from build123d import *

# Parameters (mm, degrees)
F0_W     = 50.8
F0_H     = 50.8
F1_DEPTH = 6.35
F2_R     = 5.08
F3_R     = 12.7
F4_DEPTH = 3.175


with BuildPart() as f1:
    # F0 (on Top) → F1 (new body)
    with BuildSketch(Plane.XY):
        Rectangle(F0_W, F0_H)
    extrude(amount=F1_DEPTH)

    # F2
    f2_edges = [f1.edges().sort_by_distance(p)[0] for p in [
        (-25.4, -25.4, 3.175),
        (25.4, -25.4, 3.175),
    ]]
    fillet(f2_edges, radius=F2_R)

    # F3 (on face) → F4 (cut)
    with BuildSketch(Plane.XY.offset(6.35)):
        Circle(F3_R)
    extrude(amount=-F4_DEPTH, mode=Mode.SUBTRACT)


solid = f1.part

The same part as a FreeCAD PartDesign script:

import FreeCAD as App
import Part
import Sketcher
Q = App.Units.Quantity


def edges_at(feature, points):
    """Names of the edges that pass closest to the given points."""
    edges = feature.Shape.Edges
    near = lambda p: min(range(len(edges)), key=lambda i: edges[i].distToShape(Part.Vertex(*p))[0])
    return sorted({f"Edge{near(p) + 1}" for p in points})

doc = App.newDocument("Part")
body = doc.addObject("PartDesign::Body", "Body")

# Sketch on XY plane
sketch1 = body.newObject("Sketcher::SketchObject", "Sketch")
sketch1.AttachmentSupport = (doc.getObject("XY_Plane"), [""])
sketch1.MapMode = "FlatFace"
sketch1.addGeometry([
    Part.LineSegment(App.Vector(-25, 25, 0), App.Vector(-25, -25, 0)),
    Part.LineSegment(App.Vector(-25, -25, 0), App.Vector(25, -25, 0)),
    Part.LineSegment(App.Vector(25, -25, 0), App.Vector(25, 25, 0)),
    Part.LineSegment(App.Vector(25, 25, 0), App.Vector(-25, 25, 0)),
], False)
sketch1.addConstraint([
    Sketcher.Constraint("Coincident", 0, 2, 1, 1),
    Sketcher.Constraint("Coincident", 1, 2, 2, 1),
    Sketcher.Constraint("Coincident", 2, 2, 3, 1),
    Sketcher.Constraint("Coincident", 3, 2, 0, 1),
    Sketcher.Constraint("Vertical", 0),
    Sketcher.Constraint("Horizontal", 1),
    Sketcher.Constraint("Vertical", 2),
    Sketcher.Constraint("Horizontal", 3),
    Sketcher.Constraint("Symmetric", 0, 2, 2, 2, -1, 1),
    Sketcher.Constraint("Equal", 3, 0),
    Sketcher.Constraint("DistanceX", 1, 1, 1, 2, Q("2 in")),
])
pad1 = body.newObject("PartDesign::Pad", "Pad")
pad1.Profile = sketch1
pad1.Length = Q("0.25 in")
doc.recompute()

fillet = body.newObject("PartDesign::Fillet", "Fillet")
fillet.Base = (pad1, edges_at(pad1, [(-25.4, -25.4, 3.175), (25.4, -25.4, 3.175)]))
fillet.Radius = Q("0.2 in")

# Sketch on XY plane
sketch2 = body.newObject("Sketcher::SketchObject", "Sketch001")
sketch2.AttachmentSupport = (doc.getObject("XY_Plane"), [""])
sketch2.MapMode = "FlatFace"
sketch2.AttachmentOffset = App.Placement(App.Vector(0, 0, 0.25 * 25.4), App.Rotation())
sketch2.addGeometry(Part.Circle(App.Vector(0, 0, 0), App.Vector(0, 0, 1), 13), False)
sketch2.addConstraint([
    Sketcher.Constraint("Coincident", 0, 3, -1, 1),
    Sketcher.Constraint("Diameter", 0, Q("1 in")),
])
pocket1 = body.newObject("PartDesign::Pocket", "Pocket")
pocket1.Profile = sketch2
pocket1.Length = Q("0.125 in")

doc.recompute()
